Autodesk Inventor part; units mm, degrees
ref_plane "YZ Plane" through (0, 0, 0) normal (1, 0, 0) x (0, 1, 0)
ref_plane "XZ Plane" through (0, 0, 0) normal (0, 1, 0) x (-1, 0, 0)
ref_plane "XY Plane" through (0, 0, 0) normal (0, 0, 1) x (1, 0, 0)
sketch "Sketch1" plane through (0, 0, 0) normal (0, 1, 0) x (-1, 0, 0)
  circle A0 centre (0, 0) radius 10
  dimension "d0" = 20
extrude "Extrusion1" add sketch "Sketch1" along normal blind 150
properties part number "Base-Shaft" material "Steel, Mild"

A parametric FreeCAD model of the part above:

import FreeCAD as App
import Part
import Sketcher

doc = App.newDocument("Part")
params = doc.addObject("Spreadsheet::Sheet", "Params")
for row, (alias, value) in enumerate([
    ("sketch1_diameter", "20 mm"),
    ("pad1_length", "150 mm"),
], start=1):
    params.set(f"A{row}", alias)
    params.set(f"B{row}", "=" + value)
    params.setAlias(f"B{row}", alias)

body = doc.addObject("PartDesign::Body", "Body")

sketch1 = body.newObject("Sketcher::SketchObject", "Sketch")
sketch1.AttachmentSupport = (doc.getObject("XZ_Plane"), [""])
sketch1.MapMode = "FlatFace"
sketch1.addGeometry(Part.Circle(App.Vector(0, 0, 0), App.Vector(0, 0, 1), 10), False)
sketch1.addConstraint([
    Sketcher.Constraint("Coincident", 0, 3, -1, 1),
    Sketcher.Constraint("Diameter", 0, 20.0),
])
sketch1.setExpression("Constraints[1]", "Params.sketch1_diameter")
pad1 = body.newObject("PartDesign::Pad", "Pad")
pad1.Profile = sketch1
pad1.setExpression("Length", "Params.pad1_length")
pad1.Reversed = True

doc.recompute()
